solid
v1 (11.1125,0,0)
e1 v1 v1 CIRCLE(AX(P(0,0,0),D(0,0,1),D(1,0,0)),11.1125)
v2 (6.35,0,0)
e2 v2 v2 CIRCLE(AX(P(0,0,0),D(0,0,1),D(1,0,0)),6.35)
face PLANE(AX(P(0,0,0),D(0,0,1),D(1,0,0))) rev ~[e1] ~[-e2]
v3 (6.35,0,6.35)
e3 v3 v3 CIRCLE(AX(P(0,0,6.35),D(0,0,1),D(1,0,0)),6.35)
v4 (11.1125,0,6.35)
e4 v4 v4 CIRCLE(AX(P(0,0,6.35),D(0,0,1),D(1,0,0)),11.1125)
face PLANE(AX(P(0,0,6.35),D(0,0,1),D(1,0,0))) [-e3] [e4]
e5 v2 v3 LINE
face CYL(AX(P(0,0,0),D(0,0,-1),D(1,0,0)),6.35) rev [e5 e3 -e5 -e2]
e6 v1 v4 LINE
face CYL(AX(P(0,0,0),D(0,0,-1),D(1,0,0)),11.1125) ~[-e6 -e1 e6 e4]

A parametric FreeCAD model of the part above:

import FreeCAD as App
import Part
import Sketcher
Q = App.Units.Quantity

doc = App.newDocument("Part")
body = doc.addObject("PartDesign::Body", "Body")

# Sketch on XY plane
sketch1 = body.newObject("Sketcher::SketchObject", "Sketch")
sketch1.AttachmentSupport = (doc.getObject("XY_Plane"), [""])
sketch1.MapMode = "FlatFace"
sketch1.addGeometry([
    Part.Circle(App.Vector(0, 0, 0), App.Vector(0, 0, 1), 11.1125),
    Part.Circle(App.Vector(0, 0, 0), App.Vector(0, 0, 1), 6.35),
], False)
sketch1.addConstraint([
    Sketcher.Constraint("Coincident", 0, 3, -1, 1),
    Sketcher.Constraint("Coincident", 1, 3, -1, 1),
    Sketcher.Constraint("Diameter", 1, Q("0.5 in")),
    Sketcher.Constraint("Diameter", 0, Q("0.875 in")),
])
pad1 = body.newObject("PartDesign::Pad", "Pad")
pad1.Profile = sketch1
pad1.Length = Q("0.25 in")

doc.recompute()
